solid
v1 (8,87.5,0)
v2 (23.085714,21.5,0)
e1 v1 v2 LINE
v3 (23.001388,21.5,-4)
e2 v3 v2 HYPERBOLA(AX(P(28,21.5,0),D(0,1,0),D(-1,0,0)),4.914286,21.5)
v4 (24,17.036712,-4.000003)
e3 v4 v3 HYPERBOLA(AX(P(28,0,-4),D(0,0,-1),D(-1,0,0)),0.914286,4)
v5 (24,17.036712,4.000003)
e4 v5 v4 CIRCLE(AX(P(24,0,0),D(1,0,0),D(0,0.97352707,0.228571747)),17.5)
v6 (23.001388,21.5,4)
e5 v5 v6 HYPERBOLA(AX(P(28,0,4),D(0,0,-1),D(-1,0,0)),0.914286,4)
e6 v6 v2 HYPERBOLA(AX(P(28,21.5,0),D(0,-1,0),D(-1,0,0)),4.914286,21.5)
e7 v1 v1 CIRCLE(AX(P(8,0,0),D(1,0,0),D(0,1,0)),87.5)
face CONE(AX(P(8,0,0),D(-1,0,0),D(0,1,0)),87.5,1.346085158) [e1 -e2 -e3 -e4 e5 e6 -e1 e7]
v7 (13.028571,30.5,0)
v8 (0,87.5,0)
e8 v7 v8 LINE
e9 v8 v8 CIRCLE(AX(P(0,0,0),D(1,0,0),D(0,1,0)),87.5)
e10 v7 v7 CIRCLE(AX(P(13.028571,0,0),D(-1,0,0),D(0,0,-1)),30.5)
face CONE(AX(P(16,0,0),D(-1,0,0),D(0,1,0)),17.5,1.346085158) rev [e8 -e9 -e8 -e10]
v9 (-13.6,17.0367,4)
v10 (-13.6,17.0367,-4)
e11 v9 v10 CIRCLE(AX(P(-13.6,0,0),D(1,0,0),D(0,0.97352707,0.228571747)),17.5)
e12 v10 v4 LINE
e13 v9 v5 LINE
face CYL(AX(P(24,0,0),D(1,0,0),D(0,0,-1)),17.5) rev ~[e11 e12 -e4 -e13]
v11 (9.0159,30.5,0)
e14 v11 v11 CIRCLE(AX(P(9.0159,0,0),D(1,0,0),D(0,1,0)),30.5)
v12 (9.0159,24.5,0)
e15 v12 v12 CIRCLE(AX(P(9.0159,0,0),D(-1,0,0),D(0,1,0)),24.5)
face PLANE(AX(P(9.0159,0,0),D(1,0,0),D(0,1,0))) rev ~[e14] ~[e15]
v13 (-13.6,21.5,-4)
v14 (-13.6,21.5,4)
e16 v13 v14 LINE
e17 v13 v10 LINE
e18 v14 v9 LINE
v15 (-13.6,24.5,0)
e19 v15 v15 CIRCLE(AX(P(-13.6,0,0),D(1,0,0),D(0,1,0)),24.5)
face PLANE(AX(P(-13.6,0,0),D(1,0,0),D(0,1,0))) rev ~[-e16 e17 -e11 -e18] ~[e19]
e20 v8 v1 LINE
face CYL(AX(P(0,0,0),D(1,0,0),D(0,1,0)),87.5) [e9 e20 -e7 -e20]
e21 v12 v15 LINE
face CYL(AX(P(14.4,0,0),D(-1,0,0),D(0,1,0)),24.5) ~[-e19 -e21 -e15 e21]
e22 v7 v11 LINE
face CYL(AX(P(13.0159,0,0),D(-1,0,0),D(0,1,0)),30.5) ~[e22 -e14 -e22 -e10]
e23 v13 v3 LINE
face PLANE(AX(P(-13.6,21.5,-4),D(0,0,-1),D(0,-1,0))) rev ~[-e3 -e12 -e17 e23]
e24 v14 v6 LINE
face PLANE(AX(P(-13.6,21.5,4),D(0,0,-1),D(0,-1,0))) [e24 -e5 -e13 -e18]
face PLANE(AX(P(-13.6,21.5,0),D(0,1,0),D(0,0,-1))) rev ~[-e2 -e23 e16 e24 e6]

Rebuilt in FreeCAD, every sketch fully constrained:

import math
import FreeCAD as App
import Part
import Sketcher
from FreeCAD import Vector
Q = App.Units.Quantity


def add_polygon(sketch, points):
    """Adds a closed chain of lines whose ends are joined by coincident constraints."""
    first, n = sketch.GeometryCount, len(points)
    for a, b in zip(points, points[1:] + points[:1]):
        sketch.addGeometry(Part.LineSegment(App.Vector(*a, 0), App.Vector(*b, 0)), False)
    for i in range(n):
        sketch.addConstraint(Sketcher.Constraint("Coincident", first + i, 2, first + (i + 1) % n, 1))

doc = App.newDocument("Part")
body = doc.addObject("PartDesign::Body", "Body")

# Sketch on XY plane
sketch1 = body.newObject("Sketcher::SketchObject", "Sketch")
sketch1.AttachmentSupport = (doc.getObject("XY_Plane"), [""])
sketch1.MapMode = "FlatFace"
add_polygon(sketch1, [(8, 88), (0, 88), (16, 18), (16, 0), (24, 0), (24, 18)])  # lines 0-5
sketch1.addConstraint([
    Sketcher.Constraint("Horizontal", 0),
    Sketcher.Constraint("Vertical", 2),
    Sketcher.Constraint("Horizontal", 3),
    Sketcher.Constraint("Vertical", 4),
    Sketcher.Constraint("PointOnObject", 0, 2, -2),
    Sketcher.Constraint("PointOnObject", 2, 2, -1),
    Sketcher.Constraint("Parallel", 1, 5),
    Sketcher.Constraint("Horizontal", 1, 2, 4, 2),
    Sketcher.Constraint("DistanceX", 0, 2, 0, 1, Q("8 mm")),
    Sketcher.Constraint("DistanceY", 2, 2, 2, 1, Q("17.5 mm")),
    Sketcher.Constraint("DistanceX", -1, 1, 3, 2, Q("24 mm")),
    Sketcher.Constraint("DistanceY", -1, 1, 0, 2, Q("87.5 mm")),
])
revolution = body.newObject("PartDesign::Revolution", "Revolution")
revolution.Profile = sketch1
revolution.ReferenceAxis = (sketch1, ["H_Axis"])
revolution.Angle = 360

# Sketch on XY plane
sketch2 = body.newObject("Sketcher::SketchObject", "Sketch001")
sketch2.AttachmentSupport = (doc.getObject("XY_Plane"), [""])
sketch2.MapMode = "FlatFace"
add_polygon(sketch2, [(-14, 0), (16, 0), (16, 24), (-14, 24)])  # lines 0-3
sketch2.addConstraint([
    Sketcher.Constraint("Horizontal", 0),
    Sketcher.Constraint("Vertical", 1),
    Sketcher.Constraint("Horizontal", 2),
    Sketcher.Constraint("Vertical", 3),
    Sketcher.Constraint("PointOnObject", 0, 2, -1),
    Sketcher.Constraint("DistanceY", 1, 1, 1, 2, Q("24.5 mm")),
    Sketcher.Constraint("DistanceX", 0, 1, 0, 2, Q("29.6 mm")),
    Sketcher.Constraint("DistanceX", -1, 1, 0, 2, Q("16 mm")),
])
revolution2 = body.newObject("PartDesign::Revolution", "Revolution001")
revolution2.Profile = sketch2
revolution2.ReferenceAxis = (sketch2, ["H_Axis"])
revolution2.Angle = 360

# Sketch on XY plane
sketch3 = body.newObject("Sketcher::SketchObject", "Sketch002")
sketch3.AttachmentSupport = (doc.getObject("XY_Plane"), [""])
sketch3.MapMode = "FlatFace"
add_polygon(sketch3, [(9, 0), (14, 0), (14, 30), (9, 30)])  # lines 0-3
sketch3.addConstraint([
    Sketcher.Constraint("Horizontal", 0),
    Sketcher.Constraint("Vertical", 1),
    Sketcher.Constraint("Horizontal", 2),
    Sketcher.Constraint("Vertical", 3),
    Sketcher.Constraint("PointOnObject", 0, 2, -1),
    Sketcher.Constraint("DistanceY", 1, 1, 1, 2, Q("30.5 mm")),
    Sketcher.Constraint("DistanceX", -1, 1, 0, 2, Q("14.4 mm")),
    Sketcher.Constraint("DistanceX", 0, 1, 0, 2, Q("5.384 mm")),
])
revolution3 = body.newObject("PartDesign::Revolution", "Revolution002")
revolution3.Profile = sketch3
revolution3.ReferenceAxis = (sketch3, ["H_Axis"])
revolution3.Angle = 360

# Sketch on YZ plane
sketch4 = body.newObject("Sketcher::SketchObject", "Sketch003")
sketch4.AttachmentSupport = (doc.getObject("YZ_Plane"), [""])
sketch4.MapMode = "FlatFace"
sketch4.AttachmentOffset = App.Placement(Vector(0, 0, 24), App.Rotation())
sketch4.addGeometry(Part.Circle(Vector(0, 0, 0), Vector(0, 0, 1), 18), False)
sketch4.addConstraint([
    Sketcher.Constraint("Coincident", 0, 3, -1, 1),
    Sketcher.Constraint("Diameter", 0, Q("35 mm")),
])
pocket1 = body.newObject("PartDesign::Pocket", "Pocket")
pocket1.Profile = sketch4
pocket1.Type = "ThroughAll"

# Sketch on YZ plane
sketch5 = body.newObject("Sketcher::SketchObject", "Sketch004")
sketch5.AttachmentSupport = (doc.getObject("YZ_Plane"), [""])
sketch5.MapMode = "FlatFace"
sketch5.AttachmentOffset = App.Placement(Vector(0, 0, -13.6), App.Rotation())
sketch5.addGeometry([
    Part.ArcOfCircle(Part.Circle(Vector(0, 0, 0), Vector(0, 0, 1), 17.5), math.radians(-13), math.radians(13)),
    Part.LineSegment(Vector(17, 4, 0), Vector(21.5, 4, 0)),
    Part.LineSegment(Vector(21.5, 4, 0), Vector(21.5, -4, 0)),
    Part.LineSegment(Vector(21.5, -4, 0), Vector(17, -4, 0)),
], False)
sketch5.addConstraint([
    Sketcher.Constraint("Coincident", 0, 2, 1, 1),
    Sketcher.Constraint("Coincident", 1, 2, 2, 1),
    Sketcher.Constraint("Coincident", 2, 2, 3, 1),
    Sketcher.Constraint("Coincident", 3, 2, 0, 1),
    Sketcher.Constraint("Horizontal", 1),
    Sketcher.Constraint("Vertical", 2),
    Sketcher.Constraint("Horizontal", 3),
    Sketcher.Constraint("Coincident", 0, 3, -1, 1),
    Sketcher.Constraint("Vertical", 0, 2, 3, 2),
    Sketcher.Constraint("DistanceY", -1, 1, 0, 2, Q("4 mm")),
    Sketcher.Constraint("Radius", 0, Q("17.5 mm")),
    Sketcher.Constraint("DistanceX", -1, 1, 1, 2, Q("21.5 mm")),
])
pocket2 = body.newObject("PartDesign::Pocket", "Pocket001")
pocket2.Profile = sketch5
pocket2.Type = "ThroughAll"
pocket2.Reversed = True

doc.recompute()
